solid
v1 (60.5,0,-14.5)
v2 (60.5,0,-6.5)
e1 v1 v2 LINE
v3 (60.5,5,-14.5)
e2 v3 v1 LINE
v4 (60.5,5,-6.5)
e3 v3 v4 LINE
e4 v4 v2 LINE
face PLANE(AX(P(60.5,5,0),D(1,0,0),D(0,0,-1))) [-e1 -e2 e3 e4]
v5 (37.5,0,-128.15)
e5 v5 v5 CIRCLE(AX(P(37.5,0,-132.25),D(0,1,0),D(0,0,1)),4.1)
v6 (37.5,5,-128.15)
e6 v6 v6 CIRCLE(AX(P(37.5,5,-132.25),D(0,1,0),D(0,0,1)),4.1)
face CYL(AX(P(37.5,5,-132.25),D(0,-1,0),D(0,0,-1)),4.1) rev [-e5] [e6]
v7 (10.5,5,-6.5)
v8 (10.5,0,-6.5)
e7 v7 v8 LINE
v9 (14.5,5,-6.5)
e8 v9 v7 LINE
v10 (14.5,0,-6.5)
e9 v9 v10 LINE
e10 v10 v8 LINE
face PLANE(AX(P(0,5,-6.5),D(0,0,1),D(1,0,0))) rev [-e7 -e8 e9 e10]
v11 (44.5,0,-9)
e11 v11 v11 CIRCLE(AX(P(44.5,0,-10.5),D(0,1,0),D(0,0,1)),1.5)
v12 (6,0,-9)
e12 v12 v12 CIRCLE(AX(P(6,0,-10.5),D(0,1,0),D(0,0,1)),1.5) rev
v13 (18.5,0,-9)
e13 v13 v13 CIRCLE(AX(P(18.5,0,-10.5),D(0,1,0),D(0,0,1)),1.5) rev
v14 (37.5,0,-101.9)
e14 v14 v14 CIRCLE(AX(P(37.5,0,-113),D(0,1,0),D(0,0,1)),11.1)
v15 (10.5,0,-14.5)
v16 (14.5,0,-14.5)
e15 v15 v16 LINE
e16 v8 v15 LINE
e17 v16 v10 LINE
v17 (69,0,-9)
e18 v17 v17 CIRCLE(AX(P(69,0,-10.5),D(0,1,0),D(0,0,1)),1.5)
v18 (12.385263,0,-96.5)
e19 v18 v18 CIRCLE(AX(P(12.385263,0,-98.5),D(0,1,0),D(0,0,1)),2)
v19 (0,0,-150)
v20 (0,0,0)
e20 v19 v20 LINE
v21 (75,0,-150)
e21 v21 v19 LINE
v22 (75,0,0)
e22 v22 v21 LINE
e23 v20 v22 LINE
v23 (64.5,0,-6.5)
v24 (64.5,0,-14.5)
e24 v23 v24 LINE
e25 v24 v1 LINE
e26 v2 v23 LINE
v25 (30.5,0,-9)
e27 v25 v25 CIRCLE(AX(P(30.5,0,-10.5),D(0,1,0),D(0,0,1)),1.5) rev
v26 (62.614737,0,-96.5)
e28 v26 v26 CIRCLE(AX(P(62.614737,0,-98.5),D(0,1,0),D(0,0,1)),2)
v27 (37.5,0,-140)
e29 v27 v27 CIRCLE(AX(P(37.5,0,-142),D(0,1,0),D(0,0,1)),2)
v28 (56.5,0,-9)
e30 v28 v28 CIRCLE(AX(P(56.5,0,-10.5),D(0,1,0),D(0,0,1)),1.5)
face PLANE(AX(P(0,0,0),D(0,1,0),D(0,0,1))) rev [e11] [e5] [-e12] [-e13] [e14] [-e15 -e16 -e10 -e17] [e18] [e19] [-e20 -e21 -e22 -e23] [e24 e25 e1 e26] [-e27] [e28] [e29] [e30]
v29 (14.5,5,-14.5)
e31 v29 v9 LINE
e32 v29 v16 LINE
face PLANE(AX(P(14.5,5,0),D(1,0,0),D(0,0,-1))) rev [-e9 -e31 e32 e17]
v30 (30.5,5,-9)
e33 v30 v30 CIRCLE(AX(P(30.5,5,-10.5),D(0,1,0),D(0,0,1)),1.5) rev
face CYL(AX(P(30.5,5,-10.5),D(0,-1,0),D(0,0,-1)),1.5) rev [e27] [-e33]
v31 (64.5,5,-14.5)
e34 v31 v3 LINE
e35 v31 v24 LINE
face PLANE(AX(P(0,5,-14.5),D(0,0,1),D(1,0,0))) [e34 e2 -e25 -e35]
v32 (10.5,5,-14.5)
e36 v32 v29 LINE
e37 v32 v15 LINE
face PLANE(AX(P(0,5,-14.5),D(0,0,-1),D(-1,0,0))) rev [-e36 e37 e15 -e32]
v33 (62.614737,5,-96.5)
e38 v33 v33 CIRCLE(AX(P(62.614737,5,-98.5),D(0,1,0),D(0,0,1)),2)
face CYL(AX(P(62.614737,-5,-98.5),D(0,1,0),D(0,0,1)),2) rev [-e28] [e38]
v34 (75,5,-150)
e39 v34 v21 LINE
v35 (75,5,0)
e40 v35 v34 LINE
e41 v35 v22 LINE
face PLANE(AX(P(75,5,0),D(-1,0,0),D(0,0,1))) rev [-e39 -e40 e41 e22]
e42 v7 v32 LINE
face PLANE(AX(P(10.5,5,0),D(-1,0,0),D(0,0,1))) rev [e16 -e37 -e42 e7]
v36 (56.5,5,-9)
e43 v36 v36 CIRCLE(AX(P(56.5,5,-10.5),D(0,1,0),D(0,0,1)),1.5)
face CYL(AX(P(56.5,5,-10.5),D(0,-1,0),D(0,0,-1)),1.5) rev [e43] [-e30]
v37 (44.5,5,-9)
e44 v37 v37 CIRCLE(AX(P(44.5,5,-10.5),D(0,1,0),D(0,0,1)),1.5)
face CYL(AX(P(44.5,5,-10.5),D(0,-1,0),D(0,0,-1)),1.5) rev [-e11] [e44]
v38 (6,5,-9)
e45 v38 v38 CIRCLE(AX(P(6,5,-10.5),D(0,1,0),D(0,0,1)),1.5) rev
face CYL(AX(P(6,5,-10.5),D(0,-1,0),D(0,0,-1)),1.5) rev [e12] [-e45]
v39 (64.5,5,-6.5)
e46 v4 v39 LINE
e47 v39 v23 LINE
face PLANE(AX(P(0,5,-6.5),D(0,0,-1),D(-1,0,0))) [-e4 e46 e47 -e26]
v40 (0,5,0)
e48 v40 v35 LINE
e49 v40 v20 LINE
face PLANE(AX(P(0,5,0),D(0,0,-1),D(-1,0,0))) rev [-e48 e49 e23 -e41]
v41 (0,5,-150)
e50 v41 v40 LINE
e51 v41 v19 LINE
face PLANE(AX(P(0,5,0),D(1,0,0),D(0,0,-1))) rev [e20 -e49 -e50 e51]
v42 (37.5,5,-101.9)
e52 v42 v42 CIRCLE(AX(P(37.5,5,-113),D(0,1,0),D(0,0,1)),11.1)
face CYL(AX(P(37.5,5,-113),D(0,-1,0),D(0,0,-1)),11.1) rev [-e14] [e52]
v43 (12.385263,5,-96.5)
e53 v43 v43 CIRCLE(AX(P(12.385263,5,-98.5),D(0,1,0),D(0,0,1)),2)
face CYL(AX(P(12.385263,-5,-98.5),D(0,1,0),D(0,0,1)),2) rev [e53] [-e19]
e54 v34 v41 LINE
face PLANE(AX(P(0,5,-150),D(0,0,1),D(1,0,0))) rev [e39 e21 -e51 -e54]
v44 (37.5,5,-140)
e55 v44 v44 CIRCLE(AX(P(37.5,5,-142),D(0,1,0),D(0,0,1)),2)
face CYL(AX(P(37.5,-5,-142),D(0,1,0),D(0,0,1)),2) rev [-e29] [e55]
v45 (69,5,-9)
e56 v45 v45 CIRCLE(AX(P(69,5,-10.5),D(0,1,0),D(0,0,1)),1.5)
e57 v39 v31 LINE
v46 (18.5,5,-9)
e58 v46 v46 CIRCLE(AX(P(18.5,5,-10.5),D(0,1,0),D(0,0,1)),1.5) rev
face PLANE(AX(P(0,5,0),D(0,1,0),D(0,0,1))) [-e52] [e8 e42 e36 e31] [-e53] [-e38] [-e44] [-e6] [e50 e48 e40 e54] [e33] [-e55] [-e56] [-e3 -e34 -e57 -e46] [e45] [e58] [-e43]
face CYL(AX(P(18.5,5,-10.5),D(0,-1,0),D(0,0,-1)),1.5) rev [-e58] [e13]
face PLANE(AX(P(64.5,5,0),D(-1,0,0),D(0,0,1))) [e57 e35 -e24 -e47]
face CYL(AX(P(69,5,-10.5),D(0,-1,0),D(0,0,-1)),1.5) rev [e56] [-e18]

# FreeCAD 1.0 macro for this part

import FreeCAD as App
import Part
import Sketcher
Q = App.Units.Quantity


def add_polygon(sketch, points):
    """Adds a closed chain of lines whose ends are joined by coincident constraints."""
    first, n = sketch.GeometryCount, len(points)
    for a, b in zip(points, points[1:] + points[:1]):
        sketch.addGeometry(Part.LineSegment(App.Vector(*a, 0), App.Vector(*b, 0)), False)
    for i in range(n):
        sketch.addConstraint(Sketcher.Constraint("Coincident", first + i, 2, first + (i + 1) % n, 1))

doc = App.newDocument("Part")
body = doc.addObject("PartDesign::Body", "Body")

# Sketch on XZ plane
sketch1 = doc.addObject("Sketcher::SketchObject", "Sketch")
body.addObject(sketch1)
sketch1.AttachmentSupport = (doc.XZ_Plane, [""])
sketch1.MapMode = "FlatFace"
add_polygon(sketch1, [(75, -150), (0, -150), (0, 0), (75, 0)])  # lines 0-3
sketch1.addGeometry(Part.Circle(App.Vector(6, -10.5, 0), App.Vector(0, 0, 1), 1.5), False)  # 4
add_polygon(sketch1, [(14.5, -6.5), (10.5, -6.5), (10.5, -14.5), (14.5, -14.5)])  # lines 5-8
sketch1.addGeometry(Part.Circle(App.Vector(18.5, -10.5, 0), App.Vector(0, 0, 1), 1.5), False)  # 9
sketch1.addGeometry(Part.Circle(App.Vector(30.5, -10.5, 0), App.Vector(0, 0, 1), 1.5), False)  # 10
sketch1.addGeometry(Part.Circle(App.Vector(44.5, -10.5, 0), App.Vector(0, 0, 1), 1.5), False)  # 11
sketch1.addGeometry(Part.Circle(App.Vector(56.5, -10.5, 0), App.Vector(0, 0, 1), 1.5), False)  # 12
add_polygon(sketch1, [(64.5, -6.5), (60.5, -6.5), (60.5, -14.5), (64.5, -14.5)])  # lines 13-16
sketch1.addGeometry(Part.Circle(App.Vector(69, -10.5, 0), App.Vector(0, 0, 1), 1.5), False)  # 17
sketch1.addGeometry(Part.Circle(App.Vector(37.5, -113, 0), App.Vector(0, 0, 1), 11.1), False)  # 18
sketch1.addGeometry(Part.Circle(App.Vector(37.5, -132.2, 0), App.Vector(0, 0, 1), 4.1), False)  # 19
sketch1.addConstraint([
    Sketcher.Constraint("Horizontal", 0),
    Sketcher.Constraint("Vertical", 1),
    Sketcher.Constraint("Horizontal", 2),
    Sketcher.Constraint("Vertical", 3),
    Sketcher.Constraint("Horizontal", 5),
    Sketcher.Constraint("Vertical", 6),
    Sketcher.Constraint("Horizontal", 7),
    Sketcher.Constraint("Vertical", 8),
    Sketcher.Constraint("Horizontal", 13),
    Sketcher.Constraint("Vertical", 14),
    Sketcher.Constraint("Horizontal", 15),
    Sketcher.Constraint("Vertical", 16),
    Sketcher.Constraint("Coincident", 1, 2, -1, 1),
    Sketcher.Constraint("Equal", 4, 9),
    Sketcher.Constraint("Equal", 9, 10),
    Sketcher.Constraint("Equal", 10, 11),
    Sketcher.Constraint("Equal", 11, 12),
    Sketcher.Constraint("Equal", 12, 17),
    Sketcher.Constraint("Horizontal", 4, 3, 9, 3),
    Sketcher.Constraint("Horizontal", 9, 3, 10, 3),
    Sketcher.Constraint("Horizontal", 10, 3, 11, 3),
    Sketcher.Constraint("Horizontal", 11, 3, 12, 3),
    Sketcher.Constraint("Horizontal", 12, 3, 17, 3),
    Sketcher.Constraint("Horizontal", 8, 2, 13, 2),
    Sketcher.Constraint("Horizontal", 7, 2, 14, 2),
    Sketcher.Constraint("Vertical", 18, 3, 19, 3),
    Sketcher.Constraint("Equal", 7, 13),
    Sketcher.Constraint("Diameter", 4, Q("3 mm")),
    Sketcher.Constraint("Diameter", 18, Q("22.2 mm")),
    Sketcher.Constraint("Diameter", 19, Q("8.2 mm")),
    Sketcher.Constraint("DistanceX", 0, 2, 0, 1, Q("75 mm")),
    Sketcher.Constraint("DistanceX", 5, 2, 5, 1, Q("4 mm")),
    Sketcher.Constraint("DistanceY", 1, 1, 1, 2, Q("150 mm")),
    Sketcher.Constraint("DistanceY", 6, 2, 6, 1, Q("8 mm")),
    Sketcher.Constraint("DistanceX", -1, 1, 4, 3, Q("6 mm")),
    Sketcher.Constraint("DistanceX", -1, 1, 17, 3, Q("69 mm")),
    Sketcher.Constraint("DistanceY", 18, 3, -1, 1, Q("113 mm")),
    Sketcher.Constraint("DistanceX", 9, 3, 10, 3, Q("12 mm")),
    Sketcher.Constraint("DistanceX", 10, 3, 11, 3, Q("14 mm")),
    Sketcher.Constraint("DistanceX", 11, 3, 12, 3, Q("12 mm")),
    Sketcher.Constraint("DistanceX", 10, 3, 18, 3, Q("7 mm")),
    Sketcher.Constraint("DistanceY", 4, 3, 5, 2, Q("4 mm")),
    Sketcher.Constraint("DistanceX", 5, 2, 9, 3, Q("8 mm")),
    Sketcher.Constraint("DistanceX", 12, 3, 13, 2, Q("4 mm")),
    Sketcher.Constraint("DistanceY", 4, 3, -1, 1, Q("10.5 mm")),
    Sketcher.Constraint("DistanceX", -1, 1, 9, 3, Q("18.5 mm")),
    Sketcher.Constraint("DistanceY", 19, 3, -1, 1, Q("132.25 mm")),
])
pad1 = doc.addObject("PartDesign::Pad", "Pad")
body.addObject(pad1)
pad1.Profile = sketch1
pad1.Length = 5
pad1.Reversed = True

# Sketch on XZ plane
sketch2 = doc.addObject("Sketcher::SketchObject", "Sketch001")
body.addObject(sketch2)
sketch2.AttachmentSupport = (doc.XZ_Plane, [""])
sketch2.MapMode = "FlatFace"
sketch2.AttachmentOffset = App.Placement(App.Vector(0, 0, -5), App.Rotation())
sketch2.addGeometry([
    Part.Circle(App.Vector(37.5, -142, 0), App.Vector(0, 0, 1), 2),
    Part.Circle(App.Vector(62.6, -98.5, 0), App.Vector(0, 0, 1), 2),
    Part.Circle(App.Vector(12.4, -98.5, 0), App.Vector(0, 0, 1), 2),
], False)
sketch2.addConstraint([
    Sketcher.Constraint("Equal", 0, 1),
    Sketcher.Constraint("Equal", 1, 2),
    Sketcher.Constraint("Horizontal", 1, 3, 2, 3),
    Sketcher.Constraint("Diameter", 0, Q("4 mm")),
    Sketcher.Constraint("DistanceY", 0, 3, -1, 1, Q("142 mm")),
    Sketcher.Constraint("DistanceX", -1, 1, 0, 3, Q("37.5 mm")),
    Sketcher.Constraint("DistanceY", 1, 3, -1, 1, Q("98.5 mm")),
    Sketcher.Constraint("DistanceX", -1, 1, 1, 3, Q("62.614737 mm")),
    Sketcher.Constraint("DistanceX", -1, 1, 2, 3, Q("12.385263 mm")),
])
pocket1 = doc.addObject("PartDesign::Pocket", "Pocket")
body.addObject(pocket1)
pocket1.Profile = sketch2
pocket1.Length = 10
pocket1.Reversed = True

doc.recompute()
